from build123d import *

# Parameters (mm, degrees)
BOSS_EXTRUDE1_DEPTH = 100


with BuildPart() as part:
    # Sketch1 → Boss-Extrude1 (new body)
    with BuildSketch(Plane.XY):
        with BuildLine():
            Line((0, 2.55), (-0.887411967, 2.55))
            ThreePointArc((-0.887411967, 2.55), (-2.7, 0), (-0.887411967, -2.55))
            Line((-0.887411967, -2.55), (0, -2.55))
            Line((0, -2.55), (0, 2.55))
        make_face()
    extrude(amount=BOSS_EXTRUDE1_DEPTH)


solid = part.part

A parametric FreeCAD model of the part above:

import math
import FreeCAD as App
import Part
import Sketcher
from FreeCAD import Vector

doc = App.newDocument("Part")
body = doc.addObject("PartDesign::Body", "Body")

# Sketch on XY plane
sketch1 = doc.addObject("Sketcher::SketchObject", "Sketch")
body.addObject(sketch1)
sketch1.AttachmentSupport = (doc.XY_Plane, [""])
sketch1.MapMode = "FlatFace"
sketch1.addGeometry(Part.LineSegment(Vector(0, 2.55, 0), Vector(-0.887412, 2.55, 0)), False)
sketch1.addGeometry(Part.ArcOfCircle(Part.Circle(Vector(0, 0, 0), Vector(0, 0, 1), 2.7), math.radians(109.188136), math.radians(250.811864)), False)
sketch1.addGeometry(Part.LineSegment(Vector(-0.887412, -2.55, 0), Vector(0, -2.55, 0)), False)
sketch1.addGeometry(Part.LineSegment(Vector(0, -2.55, 0), Vector(0, 2.55, 0)), False)
sketch1.addConstraint(Sketcher.Constraint("Coincident", 0, 2, 1, 1))
sketch1.addConstraint(Sketcher.Constraint("Coincident", 1, 2, 2, 1))
sketch1.addConstraint(Sketcher.Constraint("Coincident", 2, 2, 3, 1))
sketch1.addConstraint(Sketcher.Constraint("Coincident", 3, 2, 0, 1))
sketch1.addConstraint(Sketcher.Constraint("Horizontal", 0))
sketch1.addConstraint(Sketcher.Constraint("Horizontal", 2))
sketch1.addConstraint(Sketcher.Constraint("Vertical", 3))
sketch1.addConstraint(Sketcher.Constraint("Coincident", 1, 3, -1, 1))
sketch1.addConstraint(Sketcher.Constraint("Symmetric", 2, 2, 3, 2, -1, 1))
sketch1.addConstraint(Sketcher.Constraint("Radius", 1, 2.7))
sketch1.addConstraint(Sketcher.Constraint("DistanceY", 3, 1, 3, 2, 5.1))
pad1 = doc.addObject("PartDesign::Pad", "Pad")
body.addObject(pad1)
pad1.Profile = sketch1
pad1.Length = 100

doc.recompute()
